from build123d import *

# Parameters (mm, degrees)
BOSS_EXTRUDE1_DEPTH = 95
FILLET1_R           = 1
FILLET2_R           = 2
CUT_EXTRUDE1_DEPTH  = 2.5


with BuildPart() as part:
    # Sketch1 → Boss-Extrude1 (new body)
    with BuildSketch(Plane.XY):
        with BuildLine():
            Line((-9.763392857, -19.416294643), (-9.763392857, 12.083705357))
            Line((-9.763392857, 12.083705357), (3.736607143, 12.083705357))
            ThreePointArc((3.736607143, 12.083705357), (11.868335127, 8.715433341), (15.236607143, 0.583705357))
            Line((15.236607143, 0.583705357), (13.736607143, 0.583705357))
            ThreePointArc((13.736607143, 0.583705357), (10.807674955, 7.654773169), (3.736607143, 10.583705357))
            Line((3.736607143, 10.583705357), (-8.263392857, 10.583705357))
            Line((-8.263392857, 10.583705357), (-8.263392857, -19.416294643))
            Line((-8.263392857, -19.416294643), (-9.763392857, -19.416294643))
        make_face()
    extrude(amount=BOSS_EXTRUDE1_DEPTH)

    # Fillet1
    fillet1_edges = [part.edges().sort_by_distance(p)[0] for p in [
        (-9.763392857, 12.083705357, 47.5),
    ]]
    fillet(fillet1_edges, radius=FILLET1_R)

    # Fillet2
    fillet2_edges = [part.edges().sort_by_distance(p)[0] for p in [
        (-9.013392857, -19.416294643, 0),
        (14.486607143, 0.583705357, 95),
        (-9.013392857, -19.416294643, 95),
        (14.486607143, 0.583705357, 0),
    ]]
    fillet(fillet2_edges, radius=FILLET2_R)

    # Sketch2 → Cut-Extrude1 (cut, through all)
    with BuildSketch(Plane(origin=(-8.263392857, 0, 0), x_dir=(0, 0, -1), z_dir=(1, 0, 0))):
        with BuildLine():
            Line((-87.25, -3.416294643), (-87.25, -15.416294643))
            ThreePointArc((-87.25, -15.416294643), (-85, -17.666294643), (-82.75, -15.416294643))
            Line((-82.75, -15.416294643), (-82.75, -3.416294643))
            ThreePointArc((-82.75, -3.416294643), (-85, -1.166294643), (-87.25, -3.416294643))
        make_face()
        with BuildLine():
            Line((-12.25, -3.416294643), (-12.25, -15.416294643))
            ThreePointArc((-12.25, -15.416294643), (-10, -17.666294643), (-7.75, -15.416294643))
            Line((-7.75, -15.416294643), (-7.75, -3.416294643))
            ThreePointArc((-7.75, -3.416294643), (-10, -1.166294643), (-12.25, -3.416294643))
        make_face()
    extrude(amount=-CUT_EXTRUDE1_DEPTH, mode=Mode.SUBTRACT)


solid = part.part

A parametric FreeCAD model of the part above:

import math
import FreeCAD as App
import Part
import Sketcher
Q = App.Units.Quantity


def edges_at(feature, points):
    """Names of the edges that pass closest to the given points."""
    edges = feature.Shape.Edges
    near = lambda p: min(range(len(edges)), key=lambda i: edges[i].distToShape(Part.Vertex(*p))[0])
    return sorted({f"Edge{near(p) + 1}" for p in points})

doc = App.newDocument("Part")
body = doc.addObject("PartDesign::Body", "Body")

sketch1 = body.newObject("Sketcher::SketchObject", "Sketch")
sketch1.AttachmentSupport = (doc.getObject("XY_Plane"), [""])
sketch1.MapMode = "FlatFace"
sketch1.addGeometry([
    Part.LineSegment(App.Vector(-9.763393, 12.083705, 0), App.Vector(-9.763393, -19.416295, 0)),
    Part.LineSegment(App.Vector(-9.763393, -19.416295, 0), App.Vector(-8.263393, -19.416295, 0)),
    Part.LineSegment(App.Vector(-8.263393, -19.416295, 0), App.Vector(-8.263393, 10.583705, 0)),
    Part.LineSegment(App.Vector(-8.263393, 10.583705, 0), App.Vector(3.736607, 10.583705, 0)),
    Part.ArcOfCircle(Part.Circle(App.Vector(3.736607, 0.583705, 0), App.Vector(0, 0, 1), 10), math.radians(0), math.radians(90)),
    Part.LineSegment(App.Vector(13.736607, 0.583705, 0), App.Vector(15.236607, 0.583705, 0)),
    Part.ArcOfCircle(Part.Circle(App.Vector(3.736607, 0.583705, 0), App.Vector(0, 0, 1), 11.5), math.radians(0), math.radians(90)),
    Part.LineSegment(App.Vector(3.736607, 12.083705, 0), App.Vector(-9.763393, 12.083705, 0)),
], False)
sketch1.addConstraint([
    Sketcher.Constraint("Coincident", 0, 2, 1, 1),
    Sketcher.Constraint("Coincident", 1, 2, 2, 1),
    Sketcher.Constraint("Coincident", 2, 2, 3, 1),
    Sketcher.Constraint("Tangent", 3, 2, 4, 2),
    Sketcher.Constraint("Coincident", 4, 1, 5, 1),
    Sketcher.Constraint("Coincident", 5, 2, 6, 1),
    Sketcher.Constraint("Tangent", 6, 2, 7, 1),
    Sketcher.Constraint("Coincident", 7, 2, 0, 1),
    Sketcher.Constraint("Vertical", 0),
    Sketcher.Constraint("Horizontal", 1),
    Sketcher.Constraint("Vertical", 2),
    Sketcher.Constraint("Horizontal", 3),
    Sketcher.Constraint("Horizontal", 5),
    Sketcher.Constraint("Horizontal", 7),
    Sketcher.Constraint("Coincident", 6, 3, 4, 3),
    Sketcher.Constraint("Horizontal", 6, 3, 4, 1),
    Sketcher.Constraint("Equal", 1, 5),
    Sketcher.Constraint("Radius", 4, Q("10 mm")),
    Sketcher.Constraint("Radius", 6, Q("11.5 mm")),
    Sketcher.Constraint("DistanceX", 3, 1, 3, 2, Q("12 mm")),
    Sketcher.Constraint("DistanceY", 2, 1, 2, 2, Q("30 mm")),
    Sketcher.Constraint("DistanceX", -1, 1, 4, 3, Q("3.736607 mm")),
    Sketcher.Constraint("DistanceY", -1, 1, 4, 3, Q("0.583705 mm")),
])
pad1 = body.newObject("PartDesign::Pad", "Pad")
pad1.Profile = sketch1
pad1.Length = 95
doc.recompute()

fillet = body.newObject("PartDesign::Fillet", "Fillet")
fillet.Base = (pad1, edges_at(pad1, [(-9.763, 12.084, 47.5)]))
fillet.Radius = 1
doc.recompute()

fillet2 = body.newObject("PartDesign::Fillet", "Fillet001")
fillet2.Base = (fillet, edges_at(fillet, [
    (-9.013, -19.416, 0),
    (14.487, 0.584, 95),
    (-9.013, -19.416, 95),
    (14.487, 0.584, 0),
]))
fillet2.Radius = 2

sketch2 = body.newObject("Sketcher::SketchObject", "Sketch001")
sketch2.AttachmentSupport = (doc.getObject("YZ_Plane"), [""])
sketch2.MapMode = "FlatFace"
sketch2.AttachmentOffset = App.Placement(App.Vector(0, 0, -8.263393), App.Rotation())
sketch2.addGeometry([
    Part.LineSegment(App.Vector(-3.416295, 87.25, 0), App.Vector(-15.416295, 87.25, 0)),
    Part.ArcOfCircle(Part.Circle(App.Vector(-15.416295, 85, 0), App.Vector(0, 0, 1), 2.25), math.radians(90), math.radians(270)),
    Part.LineSegment(App.Vector(-15.416295, 82.75, 0), App.Vector(-3.416295, 82.75, 0)),
    Part.ArcOfCircle(Part.Circle(App.Vector(-3.416295, 85, 0), App.Vector(0, 0, 1), 2.25), math.radians(-90), math.radians(90)),
    Part.LineSegment(App.Vector(-3.416295, 12.25, 0), App.Vector(-15.416295, 12.25, 0)),
    Part.ArcOfCircle(Part.Circle(App.Vector(-15.416295, 10, 0), App.Vector(0, 0, 1), 2.25), math.radians(90), math.radians(270)),
    Part.LineSegment(App.Vector(-15.416295, 7.75, 0), App.Vector(-3.416295, 7.75, 0)),
    Part.ArcOfCircle(Part.Circle(App.Vector(-3.416295, 10, 0), App.Vector(0, 0, 1), 2.25), math.radians(-90), math.radians(90)),
], False)
sketch2.addConstraint([
    Sketcher.Constraint("Tangent", 0, 2, 1, 1),
    Sketcher.Constraint("Tangent", 1, 2, 2, 1),
    Sketcher.Constraint("Tangent", 2, 2, 3, 1),
    Sketcher.Constraint("Tangent", 3, 2, 0, 1),
    Sketcher.Constraint("Tangent", 4, 2, 5, 1),
    Sketcher.Constraint("Tangent", 5, 2, 6, 1),
    Sketcher.Constraint("Tangent", 6, 2, 7, 1),
    Sketcher.Constraint("Tangent", 7, 2, 4, 1),
    Sketcher.Constraint("Horizontal", 0),
    Sketcher.Constraint("Horizontal", 2),
    Sketcher.Constraint("Horizontal", 4),
    Sketcher.Constraint("Horizontal", 6),
    Sketcher.Constraint("Equal", 3, 5),
    Sketcher.Constraint("Vertical", 1, 3, 5, 3),
    Sketcher.Constraint("Vertical", 3, 3, 7, 3),
    Sketcher.Constraint("DistanceX", 0, 2, 0, 1, Q("12 mm")),
    Sketcher.Constraint("Radius", 1, Q("2.25 mm")),
    Sketcher.Constraint("DistanceY", -1, 1, 1, 3, Q("85 mm")),
    Sketcher.Constraint("DistanceY", -1, 1, 5, 3, Q("10 mm")),
    Sketcher.Constraint("DistanceX", 1, 3, -1, 1, Q("15.416295 mm")),
])
pocket1 = body.newObject("PartDesign::Pocket", "Pocket")
pocket1.Profile = sketch2
pocket1.Type = "ThroughAll"

doc.recompute()
